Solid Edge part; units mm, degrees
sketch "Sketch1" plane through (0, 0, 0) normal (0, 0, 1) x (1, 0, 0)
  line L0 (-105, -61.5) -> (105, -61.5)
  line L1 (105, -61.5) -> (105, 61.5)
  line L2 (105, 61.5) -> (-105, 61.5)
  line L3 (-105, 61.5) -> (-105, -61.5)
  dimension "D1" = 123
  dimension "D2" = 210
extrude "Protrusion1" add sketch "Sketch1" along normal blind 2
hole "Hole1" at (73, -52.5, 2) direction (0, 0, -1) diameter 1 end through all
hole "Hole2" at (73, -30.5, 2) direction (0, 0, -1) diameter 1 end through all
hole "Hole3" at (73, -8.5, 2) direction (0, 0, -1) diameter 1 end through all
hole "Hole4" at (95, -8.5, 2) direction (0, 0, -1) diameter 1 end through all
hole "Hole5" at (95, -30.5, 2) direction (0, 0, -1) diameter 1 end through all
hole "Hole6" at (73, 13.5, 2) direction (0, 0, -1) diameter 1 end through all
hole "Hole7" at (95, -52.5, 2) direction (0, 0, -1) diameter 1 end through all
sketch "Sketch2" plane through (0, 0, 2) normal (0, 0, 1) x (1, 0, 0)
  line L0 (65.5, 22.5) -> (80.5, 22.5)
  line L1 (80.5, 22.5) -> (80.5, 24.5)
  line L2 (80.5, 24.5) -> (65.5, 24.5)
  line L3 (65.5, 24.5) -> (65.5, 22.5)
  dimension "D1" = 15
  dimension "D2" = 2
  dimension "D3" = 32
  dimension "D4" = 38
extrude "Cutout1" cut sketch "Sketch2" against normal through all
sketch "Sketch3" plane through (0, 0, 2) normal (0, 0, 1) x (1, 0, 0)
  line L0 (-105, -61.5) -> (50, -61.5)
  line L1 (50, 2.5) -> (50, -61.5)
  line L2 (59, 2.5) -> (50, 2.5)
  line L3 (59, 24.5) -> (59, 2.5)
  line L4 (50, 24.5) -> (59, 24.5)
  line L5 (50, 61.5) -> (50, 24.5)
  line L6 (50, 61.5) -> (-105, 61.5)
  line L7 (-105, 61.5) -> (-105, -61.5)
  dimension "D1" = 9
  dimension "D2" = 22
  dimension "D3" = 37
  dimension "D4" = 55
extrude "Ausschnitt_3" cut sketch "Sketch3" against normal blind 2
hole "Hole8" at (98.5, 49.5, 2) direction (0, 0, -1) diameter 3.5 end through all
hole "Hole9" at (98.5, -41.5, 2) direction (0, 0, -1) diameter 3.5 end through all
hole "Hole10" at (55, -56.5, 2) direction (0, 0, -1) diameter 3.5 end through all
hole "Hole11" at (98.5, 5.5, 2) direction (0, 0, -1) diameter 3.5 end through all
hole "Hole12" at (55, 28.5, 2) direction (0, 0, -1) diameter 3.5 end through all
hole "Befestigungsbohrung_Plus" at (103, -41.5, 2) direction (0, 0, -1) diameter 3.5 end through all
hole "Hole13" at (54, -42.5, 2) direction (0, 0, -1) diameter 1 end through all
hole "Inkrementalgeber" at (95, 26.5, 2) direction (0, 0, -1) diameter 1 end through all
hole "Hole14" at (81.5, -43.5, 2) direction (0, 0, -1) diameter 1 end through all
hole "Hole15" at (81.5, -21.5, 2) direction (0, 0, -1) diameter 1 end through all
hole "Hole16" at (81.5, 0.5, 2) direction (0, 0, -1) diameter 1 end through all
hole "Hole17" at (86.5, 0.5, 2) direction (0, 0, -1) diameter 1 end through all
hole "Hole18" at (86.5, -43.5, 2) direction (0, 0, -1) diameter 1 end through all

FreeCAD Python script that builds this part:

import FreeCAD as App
import Part
import Sketcher


def add_polygon(sketch, points):
    """Adds a closed chain of lines whose ends are joined by coincident constraints."""
    first, n = sketch.GeometryCount, len(points)
    for a, b in zip(points, points[1:] + points[:1]):
        sketch.addGeometry(Part.LineSegment(App.Vector(*a, 0), App.Vector(*b, 0)), False)
    for i in range(n):
        sketch.addConstraint(Sketcher.Constraint("Coincident", first + i, 2, first + (i + 1) % n, 1))

doc = App.newDocument("Part")
body = doc.addObject("PartDesign::Body", "Body")

# Sketch on XY plane
sketch1 = body.newObject("Sketcher::SketchObject", "Sketch")
sketch1.AttachmentSupport = (doc.getObject("XY_Plane"), [""])
sketch1.MapMode = "FlatFace"
add_polygon(sketch1, [(-105, 62), (-105, -62), (105, -62), (105, 62)])  # lines 0-3
sketch1.addConstraint([
    Sketcher.Constraint("Vertical", 0),
    Sketcher.Constraint("Horizontal", 1),
    Sketcher.Constraint("Vertical", 2),
    Sketcher.Constraint("Horizontal", 3),
    Sketcher.Constraint("Symmetric", 0, 2, 2, 2, -1, 1),
    Sketcher.Constraint("DistanceX", 0, 2, -1, 1, 105.0),
    Sketcher.Constraint("DistanceY", 0, 2, 0, 1, 123.0),
])
pad1 = body.newObject("PartDesign::Pad", "Pad")
pad1.Profile = sketch1
pad1.Length = 2

# Sketch on XY plane
sketch2 = body.newObject("Sketcher::SketchObject", "Sketch001")
sketch2.AttachmentSupport = (doc.getObject("XY_Plane"), [""])
sketch2.MapMode = "FlatFace"
sketch2.AttachmentOffset = App.Placement(App.Vector(0, 0, 2), App.Rotation())
sketch2.addGeometry(Part.Circle(App.Vector(73, -52.5, 0), App.Vector(0, 0, 1), 0.5), False)
sketch2.addConstraint([
    Sketcher.Constraint("Diameter", 0, 1.0),
    Sketcher.Constraint("DistanceX", -1, 1, 0, 3, 73.0),
    Sketcher.Constraint("DistanceY", 0, 3, -1, 1, 52.5),
])
doc.recompute()
hole = body.newObject("PartDesign::Hole", "Hole")
hole.Profile = sketch2
hole.ThreadType = "None"
hole.Diameter = 1
hole.DepthType = "ThroughAll"

# Sketch on XY plane
sketch3 = body.newObject("Sketcher::SketchObject", "Sketch002")
sketch3.AttachmentSupport = (doc.getObject("XY_Plane"), [""])
sketch3.MapMode = "FlatFace"
sketch3.AttachmentOffset = App.Placement(App.Vector(0, 0, 2), App.Rotation())
sketch3.addGeometry(Part.Circle(App.Vector(73, -30.5, 0), App.Vector(0, 0, 1), 0.5), False)
sketch3.addConstraint([
    Sketcher.Constraint("Diameter", 0, 1.0),
    Sketcher.Constraint("DistanceX", -1, 1, 0, 3, 73.0),
    Sketcher.Constraint("DistanceY", 0, 3, -1, 1, 30.5),
])
doc.recompute()
hole2 = body.newObject("PartDesign::Hole", "Hole001")
hole2.Profile = sketch3
hole2.ThreadType = "None"
hole2.Diameter = 1
hole2.DepthType = "ThroughAll"

# Sketch on XY plane
sketch4 = body.newObject("Sketcher::SketchObject", "Sketch003")
sketch4.AttachmentSupport = (doc.getObject("XY_Plane"), [""])
sketch4.MapMode = "FlatFace"
sketch4.AttachmentOffset = App.Placement(App.Vector(0, 0, 2), App.Rotation())
sketch4.addGeometry(Part.Circle(App.Vector(73, -8.5, 0), App.Vector(0, 0, 1), 0.5), False)
sketch4.addConstraint([
    Sketcher.Constraint("Diameter", 0, 1.0),
    Sketcher.Constraint("DistanceX", -1, 1, 0, 3, 73.0),
    Sketcher.Constraint("DistanceY", 0, 3, -1, 1, 8.5),
])
doc.recompute()
hole3 = body.newObject("PartDesign::Hole", "Hole002")
hole3.Profile = sketch4
hole3.ThreadType = "None"
hole3.Diameter = 1
hole3.DepthType = "ThroughAll"

# Sketch on XY plane
sketch5 = body.newObject("Sketcher::SketchObject", "Sketch004")
sketch5.AttachmentSupport = (doc.getObject("XY_Plane"), [""])
sketch5.MapMode = "FlatFace"
sketch5.AttachmentOffset = App.Placement(App.Vector(0, 0, 2), App.Rotation())
sketch5.addGeometry(Part.Circle(App.Vector(95, -8.5, 0), App.Vector(0, 0, 1), 0.5), False)
sketch5.addConstraint([
    Sketcher.Constraint("Diameter", 0, 1.0),
    Sketcher.Constraint("DistanceX", -1, 1, 0, 3, 95.0),
    Sketcher.Constraint("DistanceY", 0, 3, -1, 1, 8.5),
])
doc.recompute()
hole4 = body.newObject("PartDesign::Hole", "Hole003")
hole4.Profile = sketch5
hole4.ThreadType = "None"
hole4.Diameter = 1
hole4.DepthType = "ThroughAll"

# Sketch on XY plane
sketch6 = body.newObject("Sketcher::SketchObject", "Sketch005")
sketch6.AttachmentSupport = (doc.getObject("XY_Plane"), [""])
sketch6.MapMode = "FlatFace"
sketch6.AttachmentOffset = App.Placement(App.Vector(0, 0, 2), App.Rotation())
sketch6.addGeometry(Part.Circle(App.Vector(95, -30.5, 0), App.Vector(0, 0, 1), 0.5), False)
sketch6.addConstraint([
    Sketcher.Constraint("Diameter", 0, 1.0),
    Sketcher.Constraint("DistanceX", -1, 1, 0, 3, 95.0),
    Sketcher.Constraint("DistanceY", 0, 3, -1, 1, 30.5),
])
doc.recompute()
hole5 = body.newObject("PartDesign::Hole", "Hole004")
hole5.Profile = sketch6
hole5.ThreadType = "None"
hole5.Diameter = 1
hole5.DepthType = "ThroughAll"

# Sketch on XY plane
sketch7 = body.newObject("Sketcher::SketchObject", "Sketch006")
sketch7.AttachmentSupport = (doc.getObject("XY_Plane"), [""])
sketch7.MapMode = "FlatFace"
sketch7.AttachmentOffset = App.Placement(App.Vector(0, 0, 2), App.Rotation())
sketch7.addGeometry(Part.Circle(App.Vector(73, 13.5, 0), App.Vector(0, 0, 1), 0.5), False)
sketch7.addConstraint([
    Sketcher.Constraint("Diameter", 0, 1.0),
    Sketcher.Constraint("DistanceX", -1, 1, 0, 3, 73.0),
    Sketcher.Constraint("DistanceY", -1, 1, 0, 3, 13.5),
])
doc.recompute()
hole6 = body.newObject("PartDesign::Hole", "Hole005")
hole6.Profile = sketch7
hole6.ThreadType = "None"
hole6.Diameter = 1
hole6.DepthType = "ThroughAll"

# Sketch on XY plane
sketch8 = body.newObject("Sketcher::SketchObject", "Sketch007")
sketch8.AttachmentSupport = (doc.getObject("XY_Plane"), [""])
sketch8.MapMode = "FlatFace"
sketch8.AttachmentOffset = App.Placement(App.Vector(0, 0, 2), App.Rotation())
sketch8.addGeometry(Part.Circle(App.Vector(95, -52.5, 0), App.Vector(0, 0, 1), 0.5), False)
sketch8.addConstraint([
    Sketcher.Constraint("Diameter", 0, 1.0),
    Sketcher.Constraint("DistanceX", -1, 1, 0, 3, 95.0),
    Sketcher.Constraint("DistanceY", 0, 3, -1, 1, 52.5),
])
doc.recompute()
hole7 = body.newObject("PartDesign::Hole", "Hole006")
hole7.Profile = sketch8
hole7.ThreadType = "None"
hole7.Diameter = 1
hole7.DepthType = "ThroughAll"

# Sketch on XY plane
sketch9 = body.newObject("Sketcher::SketchObject", "Sketch008")
sketch9.AttachmentSupport = (doc.getObject("XY_Plane"), [""])
sketch9.MapMode = "FlatFace"
sketch9.AttachmentOffset = App.Placement(App.Vector(0, 0, 2), App.Rotation())
add_polygon(sketch9, [(65.5, 24.5), (65.5, 22.5), (80.5, 22.5), (80.5, 24.5)])  # lines 0-3
sketch9.addConstraint([
    Sketcher.Constraint("Vertical", 0),
    Sketcher.Constraint("Horizontal", 1),
    Sketcher.Constraint("Vertical", 2),
    Sketcher.Constraint("Horizontal", 3),
    Sketcher.Constraint("DistanceX", -1, 1, 0, 2, 65.5),
    Sketcher.Constraint("DistanceX", -1, 1, 1, 2, 80.5),
    Sketcher.Constraint("DistanceY", 0, 2, 0, 1, 2.0),
    Sketcher.Constraint("DistanceY", -1, 1, 0, 2, 22.5),
])
pocket1 = body.newObject("PartDesign::Pocket", "Pocket")
pocket1.Profile = sketch9
pocket1.Type = "ThroughAll"

# Sketch on XY plane
sketch10 = body.newObject("Sketcher::SketchObject", "Sketch009")
sketch10.AttachmentSupport = (doc.getObject("XY_Plane"), [""])
sketch10.MapMode = "FlatFace"
sketch10.AttachmentOffset = App.Placement(App.Vector(0, 0, 2), App.Rotation())
add_polygon(sketch10, [(-105, 62), (-105, -62), (50, -62), (50, 2), (59, 2), (59, 24), (50, 24), (50, 62)])  # lines 0-7
sketch10.addConstraint([
    Sketcher.Constraint("Vertical", 0),
    Sketcher.Constraint("Horizontal", 1),
    Sketcher.Constraint("Vertical", 2),
    Sketcher.Constraint("Horizontal", 3),
    Sketcher.Constraint("Vertical", 4),
    Sketcher.Constraint("Horizontal", 5),
    Sketcher.Constraint("Vertical", 6),
    Sketcher.Constraint("Horizontal", 7),
    Sketcher.Constraint("Symmetric", 1, 2, 6, 2, -1),
    Sketcher.Constraint("DistanceX", -1, 1, 1, 2, 50.0),
    Sketcher.Constraint("DistanceX", -1, 1, 3, 2, 59.0),
    Sketcher.Constraint("DistanceY", 2, 2, 6, 2, 59.0),
    Sketcher.Constraint("DistanceX", 1, 1, 1, 2, 155.0),
    Sketcher.Constraint("DistanceY", 0, 2, 0, 1, 123.0),
    Sketcher.Constraint("DistanceY", 4, 1, 4, 2, 22.0),
])
pocket2 = body.newObject("PartDesign::Pocket", "Pocket001")
pocket2.Profile = sketch10
pocket2.Length = 2

# Sketch on XY plane
sketch11 = body.newObject("Sketcher::SketchObject", "Sketch010")
sketch11.AttachmentSupport = (doc.getObject("XY_Plane"), [""])
sketch11.MapMode = "FlatFace"
sketch11.AttachmentOffset = App.Placement(App.Vector(0, 0, 2), App.Rotation())
sketch11.addGeometry(Part.Circle(App.Vector(98.5, 49.5, 0), App.Vector(0, 0, 1), 1.8), False)
sketch11.addConstraint([
    Sketcher.Constraint("Diameter", 0, 3.5),
    Sketcher.Constraint("DistanceX", -1, 1, 0, 3, 98.5),
    Sketcher.Constraint("DistanceY", -1, 1, 0, 3, 49.5),
])
doc.recompute()
hole8 = body.newObject("PartDesign::Hole", "Hole007")
hole8.Profile = sketch11
hole8.ThreadType = "None"
hole8.Diameter = 3.5
hole8.DepthType = "ThroughAll"

# Sketch on XY plane
sketch12 = body.newObject("Sketcher::SketchObject", "Sketch011")
sketch12.AttachmentSupport = (doc.getObject("XY_Plane"), [""])
sketch12.MapMode = "FlatFace"
sketch12.AttachmentOffset = App.Placement(App.Vector(0, 0, 2), App.Rotation())
sketch12.addGeometry(Part.Circle(App.Vector(98.5, -41.5, 0), App.Vector(0, 0, 1), 1.8), False)
sketch12.addConstraint([
    Sketcher.Constraint("Diameter", 0, 3.5),
    Sketcher.Constraint("DistanceX", -1, 1, 0, 3, 98.5),
    Sketcher.Constraint("DistanceY", 0, 3, -1, 1, 41.5),
])
doc.recompute()
hole9 = body.newObject("PartDesign::Hole", "Hole008")
hole9.Profile = sketch12
hole9.ThreadType = "None"
hole9.Diameter = 3.5
hole9.DepthType = "ThroughAll"

# Sketch on XY plane
sketch13 = body.newObject("Sketcher::SketchObject", "Sketch012")
sketch13.AttachmentSupport = (doc.getObject("XY_Plane"), [""])
sketch13.MapMode = "FlatFace"
sketch13.AttachmentOffset = App.Placement(App.Vector(0, 0, 2), App.Rotation())
sketch13.addGeometry(Part.Circle(App.Vector(55, -56.5, 0), App.Vector(0, 0, 1), 1.8), False)
sketch13.addConstraint([
    Sketcher.Constraint("Diameter", 0, 3.5),
    Sketcher.Constraint("DistanceX", -1, 1, 0, 3, 55.0),
    Sketcher.Constraint("DistanceY", 0, 3, -1, 1, 56.5),
])
doc.recompute()
hole10 = body.newObject("PartDesign::Hole", "Hole009")
hole10.Profile = sketch13
hole10.ThreadType = "None"
hole10.Diameter = 3.5
hole10.DepthType = "ThroughAll"

# Sketch on XY plane
sketch14 = body.newObject("Sketcher::SketchObject", "Sketch013")
sketch14.AttachmentSupport = (doc.getObject("XY_Plane"), [""])
sketch14.MapMode = "FlatFace"
sketch14.AttachmentOffset = App.Placement(App.Vector(0, 0, 2), App.Rotation())
sketch14.addGeometry(Part.Circle(App.Vector(98.5, 5.5, 0), App.Vector(0, 0, 1), 1.8), False)
sketch14.addConstraint([
    Sketcher.Constraint("Diameter", 0, 3.5),
    Sketcher.Constraint("DistanceX", -1, 1, 0, 3, 98.5),
    Sketcher.Constraint("DistanceY", -1, 1, 0, 3, 5.5),
])
doc.recompute()
hole11 = body.newObject("PartDesign::Hole", "Hole010")
hole11.Profile = sketch14
hole11.ThreadType = "None"
hole11.Diameter = 3.5
hole11.DepthType = "ThroughAll"

# Sketch on XY plane
sketch15 = body.newObject("Sketcher::SketchObject", "Sketch014")
sketch15.AttachmentSupport = (doc.getObject("XY_Plane"), [""])
sketch15.MapMode = "FlatFace"
sketch15.AttachmentOffset = App.Placement(App.Vector(0, 0, 2), App.Rotation())
sketch15.addGeometry(Part.Circle(App.Vector(55, 28.5, 0), App.Vector(0, 0, 1), 1.8), False)
sketch15.addConstraint([
    Sketcher.Constraint("Diameter", 0, 3.5),
    Sketcher.Constraint("DistanceX", -1, 1, 0, 3, 55.0),
    Sketcher.Constraint("DistanceY", -1, 1, 0, 3, 28.5),
])
doc.recompute()
hole12 = body.newObject("PartDesign::Hole", "Hole011")
hole12.Profile = sketch15
hole12.ThreadType = "None"
hole12.Diameter = 3.5
hole12.DepthType = "ThroughAll"

# Sketch on XY plane
sketch16 = body.newObject("Sketcher::SketchObject", "Sketch015")
sketch16.AttachmentSupport = (doc.getObject("XY_Plane"), [""])
sketch16.MapMode = "FlatFace"
sketch16.AttachmentOffset = App.Placement(App.Vector(0, 0, 2), App.Rotation())
sketch16.addGeometry(Part.Circle(App.Vector(103, -41.5, 0), App.Vector(0, 0, 1), 1.8), False)
sketch16.addConstraint([
    Sketcher.Constraint("Diameter", 0, 3.5),
    Sketcher.Constraint("DistanceX", -1, 1, 0, 3, 103.0),
    Sketcher.Constraint("DistanceY", 0, 3, -1, 1, 41.5),
])
doc.recompute()
hole13 = body.newObject("PartDesign::Hole", "Hole012")
hole13.Profile = sketch16
hole13.ThreadType = "None"
hole13.Diameter = 3.5
hole13.DepthType = "ThroughAll"

# Sketch on XY plane
sketch17 = body.newObject("Sketcher::SketchObject", "Sketch016")
sketch17.AttachmentSupport = (doc.getObject("XY_Plane"), [""])
sketch17.MapMode = "FlatFace"
sketch17.AttachmentOffset = App.Placement(App.Vector(0, 0, 2), App.Rotation())
sketch17.addGeometry(Part.Circle(App.Vector(54, -42.5, 0), App.Vector(0, 0, 1), 0.5), False)
sketch17.addConstraint([
    Sketcher.Constraint("Diameter", 0, 1.0),
    Sketcher.Constraint("DistanceX", -1, 1, 0, 3, 54.0),
    Sketcher.Constraint("DistanceY", 0, 3, -1, 1, 42.5),
])
doc.recompute()
hole14 = body.newObject("PartDesign::Hole", "Hole013")
hole14.Profile = sketch17
hole14.ThreadType = "None"
hole14.Diameter = 1
hole14.DepthType = "ThroughAll"

# Sketch on XY plane
sketch18 = body.newObject("Sketcher::SketchObject", "Sketch017")
sketch18.AttachmentSupport = (doc.getObject("XY_Plane"), [""])
sketch18.MapMode = "FlatFace"
sketch18.AttachmentOffset = App.Placement(App.Vector(0, 0, 2), App.Rotation())
sketch18.addGeometry(Part.Circle(App.Vector(95, 26.5, 0), App.Vector(0, 0, 1), 0.5), False)
sketch18.addConstraint([
    Sketcher.Constraint("Diameter", 0, 1.0),
    Sketcher.Constraint("DistanceX", -1, 1, 0, 3, 95.0),
    Sketcher.Constraint("DistanceY", -1, 1, 0, 3, 26.5),
])
doc.recompute()
hole15 = body.newObject("PartDesign::Hole", "Hole014")
hole15.Profile = sketch18
hole15.ThreadType = "None"
hole15.Diameter = 1
hole15.DepthType = "ThroughAll"

# Sketch on XY plane
sketch19 = body.newObject("Sketcher::SketchObject", "Sketch018")
sketch19.AttachmentSupport = (doc.getObject("XY_Plane"), [""])
sketch19.MapMode = "FlatFace"
sketch19.AttachmentOffset = App.Placement(App.Vector(0, 0, 2), App.Rotation())
sketch19.addGeometry(Part.Circle(App.Vector(81.5, -43.5, 0), App.Vector(0, 0, 1), 0.5), False)
sketch19.addConstraint([
    Sketcher.Constraint("Diameter", 0, 1.0),
    Sketcher.Constraint("DistanceX", -1, 1, 0, 3, 81.5),
    Sketcher.Constraint("DistanceY", 0, 3, -1, 1, 43.5),
])
doc.recompute()
hole16 = body.newObject("PartDesign::Hole", "Hole015")
hole16.Profile = sketch19
hole16.ThreadType = "None"
hole16.Diameter = 1
hole16.DepthType = "ThroughAll"

# Sketch on XY plane
sketch20 = body.newObject("Sketcher::SketchObject", "Sketch019")
sketch20.AttachmentSupport = (doc.getObject("XY_Plane"), [""])
sketch20.MapMode = "FlatFace"
sketch20.AttachmentOffset = App.Placement(App.Vector(0, 0, 2), App.Rotation())
sketch20.addGeometry(Part.Circle(App.Vector(81.5, -21.5, 0), App.Vector(0, 0, 1), 0.5), False)
sketch20.addConstraint([
    Sketcher.Constraint("Diameter", 0, 1.0),
    Sketcher.Constraint("DistanceX", -1, 1, 0, 3, 81.5),
    Sketcher.Constraint("DistanceY", 0, 3, -1, 1, 21.5),
])
doc.recompute()
hole17 = body.newObject("PartDesign::Hole", "Hole016")
hole17.Profile = sketch20
hole17.ThreadType = "None"
hole17.Diameter = 1
hole17.DepthType = "ThroughAll"

# Sketch on XY plane
sketch21 = body.newObject("Sketcher::SketchObject", "Sketch020")
sketch21.AttachmentSupport = (doc.getObject("XY_Plane"), [""])
sketch21.MapMode = "FlatFace"
sketch21.AttachmentOffset = App.Placement(App.Vector(0, 0, 2), App.Rotation())
sketch21.addGeometry(Part.Circle(App.Vector(81.5, 0.5, 0), App.Vector(0, 0, 1), 0.5), False)
sketch21.addConstraint([
    Sketcher.Constraint("Diameter", 0, 1.0),
    Sketcher.Constraint("DistanceX", -1, 1, 0, 3, 81.5),
    Sketcher.Constraint("DistanceY", -1, 1, 0, 3, 0.5),
])
doc.recompute()
hole18 = body.newObject("PartDesign::Hole", "Hole017")
hole18.Profile = sketch21
hole18.ThreadType = "None"
hole18.Diameter = 1
hole18.DepthType = "ThroughAll"

# Sketch on XY plane
sketch22 = body.newObject("Sketcher::SketchObject", "Sketch021")
sketch22.AttachmentSupport = (doc.getObject("XY_Plane"), [""])
sketch22.MapMode = "FlatFace"
sketch22.AttachmentOffset = App.Placement(App.Vector(0, 0, 2), App.Rotation())
sketch22.addGeometry(Part.Circle(App.Vector(86.5, 0.5, 0), App.Vector(0, 0, 1), 0.5), False)
sketch22.addConstraint([
    Sketcher.Constraint("Diameter", 0, 1.0),
    Sketcher.Constraint("DistanceX", -1, 1, 0, 3, 86.5),
    Sketcher.Constraint("DistanceY", -1, 1, 0, 3, 0.5),
])
doc.recompute()
hole19 = body.newObject("PartDesign::Hole", "Hole018")
hole19.Profile = sketch22
hole19.ThreadType = "None"
hole19.Diameter = 1
hole19.DepthType = "ThroughAll"

# Sketch on XY plane
sketch23 = body.newObject("Sketcher::SketchObject", "Sketch022")
sketch23.AttachmentSupport = (doc.getObject("XY_Plane"), [""])
sketch23.MapMode = "FlatFace"
sketch23.AttachmentOffset = App.Placement(App.Vector(0, 0, 2), App.Rotation())
sketch23.addGeometry(Part.Circle(App.Vector(86.5, -43.5, 0), App.Vector(0, 0, 1), 0.5), False)
sketch23.addConstraint([
    Sketcher.Constraint("Diameter", 0, 1.0),
    Sketcher.Constraint("DistanceX", -1, 1, 0, 3, 86.5),
    Sketcher.Constraint("DistanceY", 0, 3, -1, 1, 43.5),
])
doc.recompute()
hole20 = body.newObject("PartDesign::Hole", "Hole019")
hole20.Profile = sketch23
hole20.ThreadType = "None"
hole20.Diameter = 1
hole20.DepthType = "ThroughAll"

doc.recompute()
